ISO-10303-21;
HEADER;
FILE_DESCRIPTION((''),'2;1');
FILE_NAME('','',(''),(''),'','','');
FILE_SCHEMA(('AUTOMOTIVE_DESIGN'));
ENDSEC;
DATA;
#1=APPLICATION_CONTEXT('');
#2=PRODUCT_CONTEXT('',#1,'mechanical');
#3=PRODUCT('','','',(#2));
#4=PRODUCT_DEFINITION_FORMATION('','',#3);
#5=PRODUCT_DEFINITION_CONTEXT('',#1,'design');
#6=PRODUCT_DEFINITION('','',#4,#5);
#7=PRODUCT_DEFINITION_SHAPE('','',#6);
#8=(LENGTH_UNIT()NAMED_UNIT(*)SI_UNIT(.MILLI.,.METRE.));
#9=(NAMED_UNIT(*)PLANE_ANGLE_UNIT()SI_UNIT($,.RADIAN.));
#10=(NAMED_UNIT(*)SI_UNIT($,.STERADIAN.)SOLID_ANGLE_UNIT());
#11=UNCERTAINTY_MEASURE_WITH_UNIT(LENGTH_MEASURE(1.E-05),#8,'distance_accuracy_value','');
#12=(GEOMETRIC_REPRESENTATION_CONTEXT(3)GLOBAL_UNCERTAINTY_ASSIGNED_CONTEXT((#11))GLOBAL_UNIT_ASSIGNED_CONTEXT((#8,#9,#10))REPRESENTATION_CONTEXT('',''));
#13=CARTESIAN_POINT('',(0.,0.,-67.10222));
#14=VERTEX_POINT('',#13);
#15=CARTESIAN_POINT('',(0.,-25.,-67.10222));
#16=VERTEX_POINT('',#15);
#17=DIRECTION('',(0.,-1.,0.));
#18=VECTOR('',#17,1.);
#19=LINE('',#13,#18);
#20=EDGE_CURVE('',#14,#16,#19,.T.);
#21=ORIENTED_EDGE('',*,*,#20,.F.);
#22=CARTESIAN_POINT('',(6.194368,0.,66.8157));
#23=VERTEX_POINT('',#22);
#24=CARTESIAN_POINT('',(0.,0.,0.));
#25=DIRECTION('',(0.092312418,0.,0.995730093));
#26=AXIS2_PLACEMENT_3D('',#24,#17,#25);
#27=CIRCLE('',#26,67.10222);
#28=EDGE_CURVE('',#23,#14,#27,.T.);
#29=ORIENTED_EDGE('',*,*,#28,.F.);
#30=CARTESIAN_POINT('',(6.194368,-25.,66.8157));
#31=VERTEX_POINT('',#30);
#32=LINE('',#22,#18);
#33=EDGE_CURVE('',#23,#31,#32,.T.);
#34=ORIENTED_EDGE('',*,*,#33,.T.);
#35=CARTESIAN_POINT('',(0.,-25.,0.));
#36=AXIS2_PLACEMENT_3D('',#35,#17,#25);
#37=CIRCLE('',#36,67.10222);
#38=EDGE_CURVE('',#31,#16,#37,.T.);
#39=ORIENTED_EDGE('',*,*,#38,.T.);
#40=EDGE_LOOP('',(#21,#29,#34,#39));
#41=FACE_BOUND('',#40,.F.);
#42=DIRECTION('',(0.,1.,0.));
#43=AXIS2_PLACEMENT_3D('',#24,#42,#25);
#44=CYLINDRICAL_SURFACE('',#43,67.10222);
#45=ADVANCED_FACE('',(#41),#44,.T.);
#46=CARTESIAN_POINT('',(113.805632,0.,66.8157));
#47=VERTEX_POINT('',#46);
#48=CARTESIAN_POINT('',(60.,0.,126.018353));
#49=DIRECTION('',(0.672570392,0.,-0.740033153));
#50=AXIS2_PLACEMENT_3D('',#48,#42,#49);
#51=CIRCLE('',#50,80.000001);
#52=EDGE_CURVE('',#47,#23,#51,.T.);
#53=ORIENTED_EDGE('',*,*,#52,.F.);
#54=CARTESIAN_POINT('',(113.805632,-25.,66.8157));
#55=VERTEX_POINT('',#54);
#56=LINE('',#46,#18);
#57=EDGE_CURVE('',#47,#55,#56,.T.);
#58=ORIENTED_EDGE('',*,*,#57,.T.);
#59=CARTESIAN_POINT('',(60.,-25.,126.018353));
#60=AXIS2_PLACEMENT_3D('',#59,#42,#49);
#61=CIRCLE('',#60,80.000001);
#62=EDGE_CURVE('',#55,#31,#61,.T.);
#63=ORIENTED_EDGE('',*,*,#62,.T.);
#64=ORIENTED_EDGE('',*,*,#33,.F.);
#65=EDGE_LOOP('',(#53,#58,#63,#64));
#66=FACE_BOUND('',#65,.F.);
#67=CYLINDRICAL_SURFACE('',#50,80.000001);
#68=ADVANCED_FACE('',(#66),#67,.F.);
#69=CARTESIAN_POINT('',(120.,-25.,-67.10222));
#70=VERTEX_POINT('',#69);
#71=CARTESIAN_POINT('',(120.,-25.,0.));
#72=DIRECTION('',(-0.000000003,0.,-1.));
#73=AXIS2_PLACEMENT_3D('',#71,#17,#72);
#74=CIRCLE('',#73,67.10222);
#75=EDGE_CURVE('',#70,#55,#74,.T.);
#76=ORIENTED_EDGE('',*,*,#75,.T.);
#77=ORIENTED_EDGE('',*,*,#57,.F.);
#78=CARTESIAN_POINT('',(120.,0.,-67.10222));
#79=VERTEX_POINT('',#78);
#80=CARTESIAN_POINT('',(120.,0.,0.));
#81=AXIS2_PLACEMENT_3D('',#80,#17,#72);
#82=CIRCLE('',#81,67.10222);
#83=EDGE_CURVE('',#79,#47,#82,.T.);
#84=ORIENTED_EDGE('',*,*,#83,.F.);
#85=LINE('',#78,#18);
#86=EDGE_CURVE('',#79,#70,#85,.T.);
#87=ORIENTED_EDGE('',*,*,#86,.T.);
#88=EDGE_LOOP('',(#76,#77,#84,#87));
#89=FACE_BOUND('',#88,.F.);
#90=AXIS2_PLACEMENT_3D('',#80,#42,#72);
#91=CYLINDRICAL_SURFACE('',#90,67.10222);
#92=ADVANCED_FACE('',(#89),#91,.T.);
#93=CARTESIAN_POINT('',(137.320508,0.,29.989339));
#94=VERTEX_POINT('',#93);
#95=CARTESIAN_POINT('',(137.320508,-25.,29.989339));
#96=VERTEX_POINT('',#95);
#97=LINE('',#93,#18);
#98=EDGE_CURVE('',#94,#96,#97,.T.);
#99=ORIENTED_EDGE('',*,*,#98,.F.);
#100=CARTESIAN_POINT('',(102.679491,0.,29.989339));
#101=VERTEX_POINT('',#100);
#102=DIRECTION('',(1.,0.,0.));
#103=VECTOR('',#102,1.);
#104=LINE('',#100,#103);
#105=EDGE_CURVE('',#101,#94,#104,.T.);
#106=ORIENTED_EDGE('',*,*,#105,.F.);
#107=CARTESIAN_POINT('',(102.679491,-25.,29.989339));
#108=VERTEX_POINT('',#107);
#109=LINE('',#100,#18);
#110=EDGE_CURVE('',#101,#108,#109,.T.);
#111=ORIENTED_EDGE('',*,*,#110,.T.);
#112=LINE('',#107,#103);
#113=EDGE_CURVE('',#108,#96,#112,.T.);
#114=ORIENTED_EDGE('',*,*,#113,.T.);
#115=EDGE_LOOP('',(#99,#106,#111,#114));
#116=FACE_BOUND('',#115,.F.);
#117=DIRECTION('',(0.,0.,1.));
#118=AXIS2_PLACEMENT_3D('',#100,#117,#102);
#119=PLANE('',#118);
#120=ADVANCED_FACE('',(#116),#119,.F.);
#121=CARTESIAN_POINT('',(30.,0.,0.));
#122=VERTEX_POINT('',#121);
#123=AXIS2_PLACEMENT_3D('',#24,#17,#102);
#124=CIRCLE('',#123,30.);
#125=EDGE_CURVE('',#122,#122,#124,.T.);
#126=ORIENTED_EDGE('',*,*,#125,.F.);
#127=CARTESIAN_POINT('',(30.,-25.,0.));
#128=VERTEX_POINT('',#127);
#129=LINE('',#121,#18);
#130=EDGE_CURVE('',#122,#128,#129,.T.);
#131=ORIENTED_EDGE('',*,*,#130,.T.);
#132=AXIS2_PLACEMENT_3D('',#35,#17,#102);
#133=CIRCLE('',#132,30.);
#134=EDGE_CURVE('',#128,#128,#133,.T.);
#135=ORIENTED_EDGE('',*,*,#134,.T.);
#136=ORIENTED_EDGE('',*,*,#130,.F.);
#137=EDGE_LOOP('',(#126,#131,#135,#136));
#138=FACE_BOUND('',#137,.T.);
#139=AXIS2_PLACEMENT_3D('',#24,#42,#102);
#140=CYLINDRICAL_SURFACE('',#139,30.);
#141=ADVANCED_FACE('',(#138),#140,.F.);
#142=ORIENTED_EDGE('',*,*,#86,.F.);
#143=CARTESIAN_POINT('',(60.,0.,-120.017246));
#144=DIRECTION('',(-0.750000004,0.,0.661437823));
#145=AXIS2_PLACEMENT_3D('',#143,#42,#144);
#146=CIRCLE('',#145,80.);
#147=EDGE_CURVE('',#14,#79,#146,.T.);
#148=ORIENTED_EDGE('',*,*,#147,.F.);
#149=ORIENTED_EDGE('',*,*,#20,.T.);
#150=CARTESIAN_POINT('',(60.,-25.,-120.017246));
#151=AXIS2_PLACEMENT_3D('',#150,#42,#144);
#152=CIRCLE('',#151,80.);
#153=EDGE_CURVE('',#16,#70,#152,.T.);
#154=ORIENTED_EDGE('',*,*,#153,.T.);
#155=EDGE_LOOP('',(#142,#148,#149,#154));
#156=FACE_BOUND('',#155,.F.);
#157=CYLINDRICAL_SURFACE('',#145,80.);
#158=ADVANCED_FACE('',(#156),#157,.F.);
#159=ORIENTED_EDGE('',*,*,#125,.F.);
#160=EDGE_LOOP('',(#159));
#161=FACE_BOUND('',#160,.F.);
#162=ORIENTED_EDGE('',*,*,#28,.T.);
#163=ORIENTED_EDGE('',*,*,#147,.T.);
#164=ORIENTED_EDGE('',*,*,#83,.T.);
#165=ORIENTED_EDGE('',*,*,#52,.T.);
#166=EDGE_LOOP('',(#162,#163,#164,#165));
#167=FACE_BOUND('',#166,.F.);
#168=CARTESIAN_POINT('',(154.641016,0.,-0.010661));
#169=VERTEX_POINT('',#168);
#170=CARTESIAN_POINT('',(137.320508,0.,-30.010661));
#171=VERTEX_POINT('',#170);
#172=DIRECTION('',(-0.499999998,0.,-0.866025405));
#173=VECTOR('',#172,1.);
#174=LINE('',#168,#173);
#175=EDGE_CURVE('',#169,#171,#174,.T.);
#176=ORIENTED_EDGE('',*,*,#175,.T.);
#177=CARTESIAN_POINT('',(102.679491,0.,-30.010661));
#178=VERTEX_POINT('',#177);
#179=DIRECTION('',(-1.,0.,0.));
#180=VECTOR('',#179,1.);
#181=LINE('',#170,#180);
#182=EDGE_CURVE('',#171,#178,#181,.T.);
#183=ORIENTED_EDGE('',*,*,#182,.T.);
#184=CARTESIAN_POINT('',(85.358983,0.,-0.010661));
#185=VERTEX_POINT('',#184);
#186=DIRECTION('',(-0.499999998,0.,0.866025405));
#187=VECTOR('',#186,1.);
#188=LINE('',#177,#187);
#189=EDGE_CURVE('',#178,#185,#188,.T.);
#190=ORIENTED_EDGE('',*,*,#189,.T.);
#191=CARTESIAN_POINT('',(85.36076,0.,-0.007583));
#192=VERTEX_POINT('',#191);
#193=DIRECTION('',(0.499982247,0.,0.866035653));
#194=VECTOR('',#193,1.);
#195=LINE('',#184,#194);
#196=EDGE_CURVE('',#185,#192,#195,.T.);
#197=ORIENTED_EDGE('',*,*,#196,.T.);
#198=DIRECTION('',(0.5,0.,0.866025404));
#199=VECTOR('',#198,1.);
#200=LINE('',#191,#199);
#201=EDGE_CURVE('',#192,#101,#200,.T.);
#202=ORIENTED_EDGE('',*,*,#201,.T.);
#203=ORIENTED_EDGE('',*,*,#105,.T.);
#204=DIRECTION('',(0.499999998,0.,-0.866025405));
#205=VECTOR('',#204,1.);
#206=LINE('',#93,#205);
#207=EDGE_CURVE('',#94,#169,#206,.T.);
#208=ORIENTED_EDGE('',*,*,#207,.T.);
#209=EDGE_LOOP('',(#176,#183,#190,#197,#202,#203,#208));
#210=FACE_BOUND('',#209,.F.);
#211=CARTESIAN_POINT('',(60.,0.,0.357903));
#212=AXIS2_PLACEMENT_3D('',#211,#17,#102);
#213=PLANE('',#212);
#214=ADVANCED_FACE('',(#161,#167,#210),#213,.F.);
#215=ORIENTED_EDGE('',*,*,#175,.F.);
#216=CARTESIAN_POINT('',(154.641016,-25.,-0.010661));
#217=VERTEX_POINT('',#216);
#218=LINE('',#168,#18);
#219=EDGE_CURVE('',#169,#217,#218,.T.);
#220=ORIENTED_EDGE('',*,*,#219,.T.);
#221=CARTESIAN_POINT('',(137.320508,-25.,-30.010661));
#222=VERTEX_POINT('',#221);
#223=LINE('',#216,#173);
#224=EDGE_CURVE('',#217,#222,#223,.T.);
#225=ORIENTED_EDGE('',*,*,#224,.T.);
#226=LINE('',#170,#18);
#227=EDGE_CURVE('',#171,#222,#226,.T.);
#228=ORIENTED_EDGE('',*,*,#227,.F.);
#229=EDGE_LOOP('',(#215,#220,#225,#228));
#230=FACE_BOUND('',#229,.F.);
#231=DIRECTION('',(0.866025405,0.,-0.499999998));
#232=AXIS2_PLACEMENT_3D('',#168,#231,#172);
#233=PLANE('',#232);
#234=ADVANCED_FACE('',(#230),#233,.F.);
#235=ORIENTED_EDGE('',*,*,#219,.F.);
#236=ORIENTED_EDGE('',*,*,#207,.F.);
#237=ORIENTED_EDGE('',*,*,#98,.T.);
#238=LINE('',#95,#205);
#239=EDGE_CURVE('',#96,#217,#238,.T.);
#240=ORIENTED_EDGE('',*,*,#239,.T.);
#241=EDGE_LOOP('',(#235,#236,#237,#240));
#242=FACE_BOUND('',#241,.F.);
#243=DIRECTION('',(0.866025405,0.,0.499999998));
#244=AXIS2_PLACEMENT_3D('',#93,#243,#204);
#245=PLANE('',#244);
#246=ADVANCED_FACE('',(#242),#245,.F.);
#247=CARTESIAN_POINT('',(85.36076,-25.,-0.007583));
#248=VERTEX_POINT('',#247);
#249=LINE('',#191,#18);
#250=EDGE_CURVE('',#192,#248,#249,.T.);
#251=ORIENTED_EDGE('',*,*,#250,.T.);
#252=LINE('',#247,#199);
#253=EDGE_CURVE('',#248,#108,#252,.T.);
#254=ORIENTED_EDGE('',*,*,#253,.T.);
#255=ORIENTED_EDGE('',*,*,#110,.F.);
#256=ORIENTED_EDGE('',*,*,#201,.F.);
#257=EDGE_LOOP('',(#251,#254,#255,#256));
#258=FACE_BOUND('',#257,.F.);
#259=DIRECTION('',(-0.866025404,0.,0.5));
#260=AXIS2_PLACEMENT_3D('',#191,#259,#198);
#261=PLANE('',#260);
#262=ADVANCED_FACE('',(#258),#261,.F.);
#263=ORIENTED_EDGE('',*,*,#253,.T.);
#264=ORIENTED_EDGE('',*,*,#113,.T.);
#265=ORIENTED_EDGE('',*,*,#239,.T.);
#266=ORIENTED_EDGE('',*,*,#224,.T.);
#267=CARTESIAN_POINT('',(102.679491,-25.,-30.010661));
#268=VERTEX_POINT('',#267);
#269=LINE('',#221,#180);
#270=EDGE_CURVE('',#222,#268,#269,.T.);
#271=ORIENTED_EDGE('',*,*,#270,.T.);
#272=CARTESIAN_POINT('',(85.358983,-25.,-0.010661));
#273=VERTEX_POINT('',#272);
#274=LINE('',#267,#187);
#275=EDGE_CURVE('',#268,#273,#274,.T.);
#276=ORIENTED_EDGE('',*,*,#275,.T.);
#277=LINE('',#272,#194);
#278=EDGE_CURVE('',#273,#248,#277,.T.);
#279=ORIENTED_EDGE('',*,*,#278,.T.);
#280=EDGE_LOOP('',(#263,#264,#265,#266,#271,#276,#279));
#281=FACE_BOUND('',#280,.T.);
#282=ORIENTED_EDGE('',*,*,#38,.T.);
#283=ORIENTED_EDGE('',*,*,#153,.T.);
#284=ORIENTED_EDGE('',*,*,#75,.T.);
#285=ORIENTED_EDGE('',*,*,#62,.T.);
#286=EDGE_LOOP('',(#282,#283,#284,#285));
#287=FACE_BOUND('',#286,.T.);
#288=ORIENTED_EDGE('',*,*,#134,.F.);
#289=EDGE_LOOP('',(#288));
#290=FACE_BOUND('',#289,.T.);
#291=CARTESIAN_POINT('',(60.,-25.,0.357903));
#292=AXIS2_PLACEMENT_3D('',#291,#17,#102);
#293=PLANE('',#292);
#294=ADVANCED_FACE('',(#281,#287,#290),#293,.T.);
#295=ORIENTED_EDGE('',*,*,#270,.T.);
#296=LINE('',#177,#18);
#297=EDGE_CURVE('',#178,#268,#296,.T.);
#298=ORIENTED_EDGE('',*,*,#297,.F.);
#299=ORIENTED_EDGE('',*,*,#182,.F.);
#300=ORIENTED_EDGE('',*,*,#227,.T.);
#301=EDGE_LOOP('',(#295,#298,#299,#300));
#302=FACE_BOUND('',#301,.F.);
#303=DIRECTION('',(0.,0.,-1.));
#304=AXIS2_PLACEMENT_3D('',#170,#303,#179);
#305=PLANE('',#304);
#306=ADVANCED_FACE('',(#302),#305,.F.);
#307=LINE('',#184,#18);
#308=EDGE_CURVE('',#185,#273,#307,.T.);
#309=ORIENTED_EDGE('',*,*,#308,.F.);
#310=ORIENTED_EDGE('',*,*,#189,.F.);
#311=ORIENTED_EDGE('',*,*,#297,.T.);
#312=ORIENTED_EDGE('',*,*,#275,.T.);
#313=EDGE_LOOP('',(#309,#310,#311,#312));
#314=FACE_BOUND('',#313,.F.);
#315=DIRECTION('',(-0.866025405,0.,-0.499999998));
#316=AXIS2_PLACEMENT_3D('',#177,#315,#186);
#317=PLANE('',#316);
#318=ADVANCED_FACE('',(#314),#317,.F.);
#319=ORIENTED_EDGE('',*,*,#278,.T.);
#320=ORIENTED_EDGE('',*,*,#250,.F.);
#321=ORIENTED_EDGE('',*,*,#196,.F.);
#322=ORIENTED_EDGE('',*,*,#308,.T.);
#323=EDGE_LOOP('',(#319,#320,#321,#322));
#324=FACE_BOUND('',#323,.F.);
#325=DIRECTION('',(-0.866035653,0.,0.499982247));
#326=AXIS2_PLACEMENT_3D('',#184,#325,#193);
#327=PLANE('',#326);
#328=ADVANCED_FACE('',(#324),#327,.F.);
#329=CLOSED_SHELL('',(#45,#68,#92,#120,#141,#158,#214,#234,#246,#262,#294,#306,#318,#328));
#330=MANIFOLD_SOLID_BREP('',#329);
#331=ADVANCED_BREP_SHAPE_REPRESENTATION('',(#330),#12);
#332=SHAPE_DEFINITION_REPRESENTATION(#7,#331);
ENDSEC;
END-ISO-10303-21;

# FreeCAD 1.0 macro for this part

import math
import FreeCAD as App
import Part
import Sketcher

V = App.Vector
Q = App.Units.Quantity


def add_polygon(sketch, points):
    """Adds a closed chain of lines whose ends are joined by coincident constraints."""
    first, n = sketch.GeometryCount, len(points)
    for a, b in zip(points, points[1:] + points[:1]):
        sketch.addGeometry(Part.LineSegment(App.Vector(*a, 0), App.Vector(*b, 0)), False)
    for i in range(n):
        sketch.addConstraint(Sketcher.Constraint("Coincident", first + i, 2, first + (i + 1) % n, 1))

doc = App.newDocument("Part")
body = doc.addObject("PartDesign::Body", "Body")

# Sketch on XZ plane
sketch1 = body.newObject("Sketcher::SketchObject", "Sketch")
sketch1.AttachmentSupport = (doc.getObject("XZ_Plane"), [""])
sketch1.MapMode = "FlatFace"
sketch1.addGeometry(Part.ArcOfCircle(Part.Circle(V(60, 126.0184, 0), V(0, 0, 1), 80), math.radians(-132), math.radians(-48)), False)  # 0
sketch1.addGeometry(Part.ArcOfCircle(Part.Circle(V(0, 0, 0), V(0, 0, 1), 67.1022), math.radians(85), math.radians(270)), False)  # 1
sketch1.addGeometry(Part.ArcOfCircle(Part.Circle(V(60, -120.0172, 0), V(0, 0, 1), 80), math.radians(41), math.radians(139)), False)  # 2
sketch1.addGeometry(Part.ArcOfCircle(Part.Circle(V(120, 0, 0), V(0, 0, 1), 67.1022), math.radians(-90), math.radians(95)), False)  # 3
add_polygon(sketch1, [(102.6795, 29.9893), (137.3205, 29.9893), (154.641, -0.0107), (137.3205, -30.0107), (102.6795, -30.0107), (85.359, -0.0107), (85.3608, -0.0076)])  # lines 4-10
sketch1.addGeometry(Part.Circle(V(0, 0, 0), V(0, 0, 1), 30), False)  # 11
sketch1.addConstraint(Sketcher.Constraint("Coincident", 0, 1, 1, 1))
sketch1.addConstraint(Sketcher.Constraint("Coincident", 1, 2, 2, 2))
sketch1.addConstraint(Sketcher.Constraint("Coincident", 2, 1, 3, 1))
sketch1.addConstraint(Sketcher.Constraint("Coincident", 3, 2, 0, 2))
sketch1.addConstraint(Sketcher.Constraint("Horizontal", 4))
sketch1.addConstraint(Sketcher.Constraint("Horizontal", 7))
sketch1.addConstraint(Sketcher.Constraint("Coincident", 1, 3, -1, 1))
sketch1.addConstraint(Sketcher.Constraint("Coincident", 11, 3, -1, 1))
sketch1.addConstraint(Sketcher.Constraint("Equal", 0, 2))
sketch1.addConstraint(Sketcher.Constraint("Equal", 1, 3))
sketch1.addConstraint(Sketcher.Constraint("PointOnObject", 3, 3, -1))
sketch1.addConstraint(Sketcher.Constraint("PointOnObject", 1, 2, -2))
sketch1.addConstraint(Sketcher.Constraint("Parallel", 5, 8))
sketch1.addConstraint(Sketcher.Constraint("Parallel", 6, 10))
sketch1.addConstraint(Sketcher.Constraint("Horizontal", 0, 1, 3, 2))
sketch1.addConstraint(Sketcher.Constraint("Horizontal", 5, 2, 8, 2))
sketch1.addConstraint(Sketcher.Constraint("Vertical", 0, 3, 2, 3))
sketch1.addConstraint(Sketcher.Constraint("Vertical", 4, 2, 6, 2))
sketch1.addConstraint(Sketcher.Constraint("Vertical", 7, 2, 10, 2))
sketch1.addConstraint(Sketcher.Constraint("Equal", 5, 6))
sketch1.addConstraint(Sketcher.Constraint("Diameter", 11, 60.0))
sketch1.addConstraint(Sketcher.Constraint("Radius", 0, 80.000001))
sketch1.addConstraint(Sketcher.Constraint("Angle", 5, Q("-60 deg")))
sketch1.addConstraint(Sketcher.Constraint("DistanceX", -1, 1, 0, 3, 60.0))
sketch1.addConstraint(Sketcher.Constraint("DistanceY", 5, 2, 4, 2, 30.0))
sketch1.addConstraint(Sketcher.Constraint("Radius", 1, 67.10222))
sketch1.addConstraint(Sketcher.Constraint("DistanceY", -1, 1, 0, 1, 66.8157))
sketch1.addConstraint(Sketcher.Constraint("Distance", 10, 34.637462))
sketch1.addConstraint(Sketcher.Constraint("DistanceX", 4, 1, 4, 2, 34.641017))
sketch1.addConstraint(Sketcher.Constraint("DistanceY", -1, 1, 4, 2, 29.989339))
sketch1.addConstraint(Sketcher.Constraint("DistanceX", -1, 1, 7, 2, 102.679491))
pad1 = body.newObject("PartDesign::Pad", "Pad")
pad1.Profile = sketch1
pad1.Length = 25

doc.recompute()
